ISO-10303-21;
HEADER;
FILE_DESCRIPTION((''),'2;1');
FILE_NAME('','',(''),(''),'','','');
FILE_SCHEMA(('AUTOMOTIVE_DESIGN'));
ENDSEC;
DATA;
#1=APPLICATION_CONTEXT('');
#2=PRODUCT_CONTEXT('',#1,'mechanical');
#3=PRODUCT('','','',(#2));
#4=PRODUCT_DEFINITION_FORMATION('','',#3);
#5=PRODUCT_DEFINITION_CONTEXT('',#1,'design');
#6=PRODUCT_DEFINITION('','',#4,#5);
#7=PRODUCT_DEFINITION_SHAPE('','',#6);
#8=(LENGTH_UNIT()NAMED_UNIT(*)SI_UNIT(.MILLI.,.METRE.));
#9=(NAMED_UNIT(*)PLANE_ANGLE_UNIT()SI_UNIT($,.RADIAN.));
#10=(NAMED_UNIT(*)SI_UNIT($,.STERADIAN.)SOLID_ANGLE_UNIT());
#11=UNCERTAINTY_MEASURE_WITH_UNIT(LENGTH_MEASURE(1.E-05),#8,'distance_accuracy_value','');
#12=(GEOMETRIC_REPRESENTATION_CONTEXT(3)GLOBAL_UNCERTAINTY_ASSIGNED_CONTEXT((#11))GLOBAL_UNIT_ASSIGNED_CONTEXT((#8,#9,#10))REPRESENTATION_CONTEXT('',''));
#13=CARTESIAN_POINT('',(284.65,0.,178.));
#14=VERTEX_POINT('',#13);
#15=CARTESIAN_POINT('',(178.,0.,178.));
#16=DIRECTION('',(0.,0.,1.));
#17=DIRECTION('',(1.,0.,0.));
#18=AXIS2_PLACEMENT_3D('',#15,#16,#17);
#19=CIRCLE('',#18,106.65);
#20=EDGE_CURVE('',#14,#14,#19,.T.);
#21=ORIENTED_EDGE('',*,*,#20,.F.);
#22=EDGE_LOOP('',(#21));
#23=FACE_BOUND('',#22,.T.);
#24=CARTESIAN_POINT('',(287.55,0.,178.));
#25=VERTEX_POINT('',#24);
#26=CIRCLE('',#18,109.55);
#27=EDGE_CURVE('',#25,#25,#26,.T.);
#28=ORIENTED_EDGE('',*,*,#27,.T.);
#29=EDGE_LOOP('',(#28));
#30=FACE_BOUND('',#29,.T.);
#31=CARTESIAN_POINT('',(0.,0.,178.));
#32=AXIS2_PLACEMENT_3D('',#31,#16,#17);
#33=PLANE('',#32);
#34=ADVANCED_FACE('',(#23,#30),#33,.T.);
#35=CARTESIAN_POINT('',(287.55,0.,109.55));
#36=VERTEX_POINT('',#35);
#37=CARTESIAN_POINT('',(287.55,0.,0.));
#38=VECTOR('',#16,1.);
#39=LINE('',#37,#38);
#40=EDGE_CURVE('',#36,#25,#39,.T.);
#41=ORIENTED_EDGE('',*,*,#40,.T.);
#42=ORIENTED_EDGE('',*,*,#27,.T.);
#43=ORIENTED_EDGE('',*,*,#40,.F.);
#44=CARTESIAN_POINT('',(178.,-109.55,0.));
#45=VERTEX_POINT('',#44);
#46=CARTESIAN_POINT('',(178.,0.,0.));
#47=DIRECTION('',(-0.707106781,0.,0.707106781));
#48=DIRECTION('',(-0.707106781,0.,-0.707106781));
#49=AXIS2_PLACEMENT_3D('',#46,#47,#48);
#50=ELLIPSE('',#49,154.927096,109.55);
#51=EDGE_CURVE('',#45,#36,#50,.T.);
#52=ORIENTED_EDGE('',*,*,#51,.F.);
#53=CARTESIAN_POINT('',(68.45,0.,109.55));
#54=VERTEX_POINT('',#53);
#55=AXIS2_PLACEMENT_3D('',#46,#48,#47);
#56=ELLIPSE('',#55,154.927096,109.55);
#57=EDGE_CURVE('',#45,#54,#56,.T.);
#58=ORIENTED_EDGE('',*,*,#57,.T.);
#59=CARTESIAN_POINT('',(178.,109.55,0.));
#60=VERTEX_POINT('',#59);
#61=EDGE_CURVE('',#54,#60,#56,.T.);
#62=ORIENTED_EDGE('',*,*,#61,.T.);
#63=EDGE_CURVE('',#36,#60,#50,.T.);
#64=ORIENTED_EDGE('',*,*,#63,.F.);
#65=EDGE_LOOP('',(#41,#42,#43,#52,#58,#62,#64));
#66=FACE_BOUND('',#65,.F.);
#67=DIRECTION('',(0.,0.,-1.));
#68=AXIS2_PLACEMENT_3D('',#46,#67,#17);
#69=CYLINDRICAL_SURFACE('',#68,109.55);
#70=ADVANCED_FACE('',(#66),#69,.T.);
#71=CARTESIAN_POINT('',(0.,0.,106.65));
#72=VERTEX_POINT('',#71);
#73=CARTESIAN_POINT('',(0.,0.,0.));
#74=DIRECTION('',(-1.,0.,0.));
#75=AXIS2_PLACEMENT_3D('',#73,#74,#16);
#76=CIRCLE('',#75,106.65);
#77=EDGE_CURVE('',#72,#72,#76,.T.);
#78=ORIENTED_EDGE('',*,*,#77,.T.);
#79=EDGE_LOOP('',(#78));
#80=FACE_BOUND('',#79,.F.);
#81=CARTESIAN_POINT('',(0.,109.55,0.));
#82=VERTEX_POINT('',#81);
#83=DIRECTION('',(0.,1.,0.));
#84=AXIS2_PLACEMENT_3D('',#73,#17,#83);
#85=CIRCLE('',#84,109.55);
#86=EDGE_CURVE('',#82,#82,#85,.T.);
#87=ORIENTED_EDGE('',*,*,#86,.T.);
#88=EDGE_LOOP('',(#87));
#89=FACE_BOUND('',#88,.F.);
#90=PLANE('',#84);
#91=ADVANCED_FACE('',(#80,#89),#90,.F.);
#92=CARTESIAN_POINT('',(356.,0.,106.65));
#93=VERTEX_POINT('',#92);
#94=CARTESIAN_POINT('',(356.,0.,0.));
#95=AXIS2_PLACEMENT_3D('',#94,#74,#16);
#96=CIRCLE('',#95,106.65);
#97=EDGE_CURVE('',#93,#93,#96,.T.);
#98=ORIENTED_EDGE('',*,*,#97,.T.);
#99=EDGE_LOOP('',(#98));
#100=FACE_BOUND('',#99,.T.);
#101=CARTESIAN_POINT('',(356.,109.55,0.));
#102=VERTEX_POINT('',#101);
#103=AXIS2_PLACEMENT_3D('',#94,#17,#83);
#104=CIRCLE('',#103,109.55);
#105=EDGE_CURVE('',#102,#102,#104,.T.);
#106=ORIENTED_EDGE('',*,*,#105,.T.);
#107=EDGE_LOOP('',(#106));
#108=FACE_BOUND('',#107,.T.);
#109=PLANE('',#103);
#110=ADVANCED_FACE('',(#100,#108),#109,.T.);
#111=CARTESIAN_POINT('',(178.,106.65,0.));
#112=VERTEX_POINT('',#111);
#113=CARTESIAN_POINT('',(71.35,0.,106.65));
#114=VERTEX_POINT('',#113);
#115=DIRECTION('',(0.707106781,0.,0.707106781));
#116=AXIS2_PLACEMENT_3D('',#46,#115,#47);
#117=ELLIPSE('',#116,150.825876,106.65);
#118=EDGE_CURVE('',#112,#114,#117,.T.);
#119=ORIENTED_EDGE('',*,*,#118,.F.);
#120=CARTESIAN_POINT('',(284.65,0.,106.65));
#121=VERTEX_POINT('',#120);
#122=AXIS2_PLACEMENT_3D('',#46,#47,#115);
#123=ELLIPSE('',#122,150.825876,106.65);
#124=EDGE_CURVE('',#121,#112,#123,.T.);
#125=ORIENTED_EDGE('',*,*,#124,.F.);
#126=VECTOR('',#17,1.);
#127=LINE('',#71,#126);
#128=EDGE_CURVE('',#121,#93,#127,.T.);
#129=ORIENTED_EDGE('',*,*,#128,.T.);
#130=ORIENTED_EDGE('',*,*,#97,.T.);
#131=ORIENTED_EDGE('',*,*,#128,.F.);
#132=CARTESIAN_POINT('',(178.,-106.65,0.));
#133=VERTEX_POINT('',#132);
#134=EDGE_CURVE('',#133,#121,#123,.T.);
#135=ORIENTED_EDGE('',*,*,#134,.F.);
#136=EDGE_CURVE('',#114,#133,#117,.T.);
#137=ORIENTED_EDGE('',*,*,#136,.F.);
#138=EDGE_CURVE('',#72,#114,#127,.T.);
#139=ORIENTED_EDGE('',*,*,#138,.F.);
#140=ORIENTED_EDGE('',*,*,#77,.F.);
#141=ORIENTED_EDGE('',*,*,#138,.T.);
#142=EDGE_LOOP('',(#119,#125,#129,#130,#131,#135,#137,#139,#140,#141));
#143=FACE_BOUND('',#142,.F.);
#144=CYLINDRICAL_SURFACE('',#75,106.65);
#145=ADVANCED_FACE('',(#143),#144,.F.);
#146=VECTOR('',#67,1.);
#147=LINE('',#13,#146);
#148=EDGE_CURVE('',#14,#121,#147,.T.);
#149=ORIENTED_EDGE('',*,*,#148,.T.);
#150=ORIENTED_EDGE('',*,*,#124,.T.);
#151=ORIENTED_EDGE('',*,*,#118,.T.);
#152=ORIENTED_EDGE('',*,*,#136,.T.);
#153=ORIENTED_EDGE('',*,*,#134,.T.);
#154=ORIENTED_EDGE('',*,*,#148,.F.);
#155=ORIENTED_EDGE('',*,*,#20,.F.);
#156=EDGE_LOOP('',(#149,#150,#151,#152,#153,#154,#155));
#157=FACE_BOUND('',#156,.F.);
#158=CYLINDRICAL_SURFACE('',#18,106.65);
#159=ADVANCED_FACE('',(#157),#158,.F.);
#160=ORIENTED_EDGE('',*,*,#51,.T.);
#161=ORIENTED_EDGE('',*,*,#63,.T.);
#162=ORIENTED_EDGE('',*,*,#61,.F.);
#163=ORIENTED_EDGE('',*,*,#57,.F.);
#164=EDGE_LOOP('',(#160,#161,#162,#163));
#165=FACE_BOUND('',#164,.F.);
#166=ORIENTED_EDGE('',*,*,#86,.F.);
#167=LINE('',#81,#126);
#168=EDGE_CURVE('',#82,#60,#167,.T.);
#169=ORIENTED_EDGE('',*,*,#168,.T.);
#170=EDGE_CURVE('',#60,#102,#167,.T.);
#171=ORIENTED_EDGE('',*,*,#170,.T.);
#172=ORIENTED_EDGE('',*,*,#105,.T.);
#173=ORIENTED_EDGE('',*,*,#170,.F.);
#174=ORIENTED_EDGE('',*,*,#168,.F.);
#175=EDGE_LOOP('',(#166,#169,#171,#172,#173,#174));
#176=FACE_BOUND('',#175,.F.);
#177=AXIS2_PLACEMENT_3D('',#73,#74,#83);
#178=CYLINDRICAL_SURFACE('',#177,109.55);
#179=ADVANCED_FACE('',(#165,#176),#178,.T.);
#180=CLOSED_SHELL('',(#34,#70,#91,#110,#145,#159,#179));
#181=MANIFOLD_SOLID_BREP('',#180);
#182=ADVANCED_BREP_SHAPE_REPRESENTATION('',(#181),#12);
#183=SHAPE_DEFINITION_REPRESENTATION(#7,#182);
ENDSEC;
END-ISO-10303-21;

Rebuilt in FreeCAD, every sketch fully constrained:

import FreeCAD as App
import Part
import Sketcher

doc = App.newDocument("Part")
body = doc.addObject("PartDesign::Body", "Body")

# Sketch on YZ plane
sketch1 = doc.addObject("Sketcher::SketchObject", "Sketch")
body.addObject(sketch1)
sketch1.AttachmentSupport = (doc.YZ_Plane, [""])
sketch1.MapMode = "FlatFace"
sketch1.addGeometry(Part.Circle(App.Vector(0, 0, 0), App.Vector(0, 0, 1), 110), False)
sketch1.addConstraint([
    Sketcher.Constraint("Coincident", 0, 3, -1, 1),
    Sketcher.Constraint("Diameter", 0, 219.1),
])
pad1 = doc.addObject("PartDesign::Pad", "Pad")
body.addObject(pad1)
pad1.Profile = sketch1
pad1.Length = 356

# Sketch on XY plane
sketch2 = doc.addObject("Sketcher::SketchObject", "Sketch001")
body.addObject(sketch2)
sketch2.AttachmentSupport = (doc.XY_Plane, [""])
sketch2.MapMode = "FlatFace"
sketch2.addGeometry(Part.Circle(App.Vector(178, 0, 0), App.Vector(0, 0, 1), 110), False)
sketch2.addConstraint([
    Sketcher.Constraint("PointOnObject", 0, 3, -1),
    Sketcher.Constraint("Diameter", 0, 219.1),
    Sketcher.Constraint("DistanceX", -1, 1, 0, 3, 178.0),
])
pad2 = doc.addObject("PartDesign::Pad", "Pad001")
body.addObject(pad2)
pad2.Profile = sketch2
pad2.Length = 178

# Sketch on YZ plane
sketch3 = doc.addObject("Sketcher::SketchObject", "Sketch002")
body.addObject(sketch3)
sketch3.AttachmentSupport = (doc.YZ_Plane, [""])
sketch3.MapMode = "FlatFace"
sketch3.addGeometry(Part.Circle(App.Vector(0, 0, 0), App.Vector(0, 0, 1), 107), False)
sketch3.addConstraint([
    Sketcher.Constraint("Coincident", 0, 3, -1, 1),
    Sketcher.Constraint("Diameter", 0, 213.3),
])
pocket1 = doc.addObject("PartDesign::Pocket", "Pocket")
body.addObject(pocket1)
pocket1.Profile = sketch3
pocket1.Type = "ThroughAll"
pocket1.Reversed = True

# Sketch on XY plane
sketch4 = doc.addObject("Sketcher::SketchObject", "Sketch003")
body.addObject(sketch4)
sketch4.AttachmentSupport = (doc.XY_Plane, [""])
sketch4.MapMode = "FlatFace"
sketch4.AttachmentOffset = App.Placement(App.Vector(0, 0, 178), App.Rotation())
sketch4.addGeometry(Part.Circle(App.Vector(178, 0, 0), App.Vector(0, 0, 1), 107), False)
sketch4.addConstraint([
    Sketcher.Constraint("PointOnObject", 0, 3, -1),
    Sketcher.Constraint("Diameter", 0, 213.3),
    Sketcher.Constraint("DistanceX", -1, 1, 0, 3, 178.0),
])
pocket2 = doc.addObject("PartDesign::Pocket", "Pocket001")
body.addObject(pocket2)
pocket2.Profile = sketch4
pocket2.Type = "UpToFirst"

doc.recompute()
